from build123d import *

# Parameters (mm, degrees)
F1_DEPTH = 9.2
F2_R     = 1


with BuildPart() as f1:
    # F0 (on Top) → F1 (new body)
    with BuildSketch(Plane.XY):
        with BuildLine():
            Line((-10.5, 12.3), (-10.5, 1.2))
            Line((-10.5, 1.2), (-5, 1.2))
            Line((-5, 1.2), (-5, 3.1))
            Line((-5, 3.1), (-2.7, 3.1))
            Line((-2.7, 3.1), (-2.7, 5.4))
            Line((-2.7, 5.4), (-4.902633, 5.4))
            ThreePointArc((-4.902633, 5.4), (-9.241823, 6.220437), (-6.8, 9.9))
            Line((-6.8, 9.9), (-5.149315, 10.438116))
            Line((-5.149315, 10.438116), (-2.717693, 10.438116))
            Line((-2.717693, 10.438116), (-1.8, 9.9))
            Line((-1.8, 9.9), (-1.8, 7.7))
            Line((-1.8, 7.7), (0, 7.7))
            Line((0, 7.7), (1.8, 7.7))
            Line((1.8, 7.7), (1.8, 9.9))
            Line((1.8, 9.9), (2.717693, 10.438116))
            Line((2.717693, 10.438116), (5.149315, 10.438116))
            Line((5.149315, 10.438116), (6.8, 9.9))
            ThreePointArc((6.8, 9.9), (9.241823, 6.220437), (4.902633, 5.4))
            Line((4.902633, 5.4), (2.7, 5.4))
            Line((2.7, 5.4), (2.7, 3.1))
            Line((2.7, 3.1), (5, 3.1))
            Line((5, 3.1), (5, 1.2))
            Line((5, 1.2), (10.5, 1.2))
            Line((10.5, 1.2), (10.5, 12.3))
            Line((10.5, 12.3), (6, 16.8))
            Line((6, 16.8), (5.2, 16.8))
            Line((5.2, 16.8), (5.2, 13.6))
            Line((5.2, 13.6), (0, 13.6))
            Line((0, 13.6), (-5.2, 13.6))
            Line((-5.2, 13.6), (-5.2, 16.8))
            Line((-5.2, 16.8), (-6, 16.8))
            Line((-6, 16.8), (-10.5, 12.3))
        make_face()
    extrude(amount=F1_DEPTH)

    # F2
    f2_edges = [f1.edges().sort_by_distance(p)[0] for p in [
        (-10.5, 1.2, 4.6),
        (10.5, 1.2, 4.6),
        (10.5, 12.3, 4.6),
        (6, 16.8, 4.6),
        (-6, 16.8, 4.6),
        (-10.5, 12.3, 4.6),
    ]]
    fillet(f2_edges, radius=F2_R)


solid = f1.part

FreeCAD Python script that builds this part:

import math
import FreeCAD as App
import Part
import Sketcher
from FreeCAD import Vector


def edges_at(feature, points):
    """Names of the edges that pass closest to the given points."""
    edges = feature.Shape.Edges
    near = lambda p: min(range(len(edges)), key=lambda i: edges[i].distToShape(Part.Vertex(*p))[0])
    return sorted({f"Edge{near(p) + 1}" for p in points})

doc = App.newDocument("Part")
body = doc.addObject("PartDesign::Body", "Body")

sketch1 = doc.addObject("Sketcher::SketchObject", "Sketch")
body.addObject(sketch1)
sketch1.AttachmentSupport = (doc.XY_Plane, [""])
sketch1.MapMode = "FlatFace"
sketch1.addGeometry([
    Part.LineSegment(Vector(-10.5, 12.3, 0), Vector(-10.5, 1.2, 0)),
    Part.LineSegment(Vector(-10.5, 1.2, 0), Vector(-5, 1.2, 0)),
    Part.LineSegment(Vector(-5, 1.2, 0), Vector(-5, 3.1, 0)),
    Part.LineSegment(Vector(-5, 3.1, 0), Vector(-2.7, 3.1, 0)),
    Part.LineSegment(Vector(-2.7, 3.1, 0), Vector(-2.7, 5.4, 0)),
    Part.LineSegment(Vector(-2.7, 5.4, 0), Vector(-4.902633, 5.4, 0)),
    Part.ArcOfCircle(Part.Circle(Vector(-6.8, 7.25, 0), Vector(0, 0, 1), 2.65), math.radians(90.000005), math.radians(315.724182)),
    Part.LineSegment(Vector(-6.8, 9.9, 0), Vector(-5.149315, 10.438116, 0)),
    Part.LineSegment(Vector(-5.149315, 10.438116, 0), Vector(-2.717693, 10.438116, 0)),
    Part.LineSegment(Vector(-2.717693, 10.438116, 0), Vector(-1.8, 9.9, 0)),
    Part.LineSegment(Vector(-1.8, 9.9, 0), Vector(-1.8, 7.7, 0)),
    Part.LineSegment(Vector(-1.8, 7.7, 0), Vector(1.8, 7.7, 0)),
    Part.LineSegment(Vector(1.8, 7.7, 0), Vector(1.8, 9.9, 0)),
    Part.LineSegment(Vector(1.8, 9.9, 0), Vector(2.717693, 10.438116, 0)),
    Part.LineSegment(Vector(2.717693, 10.438116, 0), Vector(5.149315, 10.438116, 0)),
    Part.LineSegment(Vector(5.149315, 10.438116, 0), Vector(6.8, 9.9, 0)),
    Part.ArcOfCircle(Part.Circle(Vector(6.8, 7.25, 0), Vector(0, 0, 1), 2.65), math.radians(-135.724182), math.radians(89.999995)),
    Part.LineSegment(Vector(4.902633, 5.4, 0), Vector(2.7, 5.4, 0)),
    Part.LineSegment(Vector(2.7, 5.4, 0), Vector(2.7, 3.1, 0)),
    Part.LineSegment(Vector(2.7, 3.1, 0), Vector(5, 3.1, 0)),
    Part.LineSegment(Vector(5, 3.1, 0), Vector(5, 1.2, 0)),
    Part.LineSegment(Vector(5, 1.2, 0), Vector(10.5, 1.2, 0)),
    Part.LineSegment(Vector(10.5, 1.2, 0), Vector(10.5, 12.3, 0)),
    Part.LineSegment(Vector(10.5, 12.3, 0), Vector(6, 16.8, 0)),
    Part.LineSegment(Vector(6, 16.8, 0), Vector(5.2, 16.8, 0)),
    Part.LineSegment(Vector(5.2, 16.8, 0), Vector(5.2, 13.6, 0)),
    Part.LineSegment(Vector(5.2, 13.6, 0), Vector(-5.2, 13.6, 0)),
    Part.LineSegment(Vector(-5.2, 13.6, 0), Vector(-5.2, 16.8, 0)),
    Part.LineSegment(Vector(-5.2, 16.8, 0), Vector(-6, 16.8, 0)),
    Part.LineSegment(Vector(-6, 16.8, 0), Vector(-10.5, 12.3, 0)),
], False)
sketch1.addConstraint([
    Sketcher.Constraint("Coincident", 0, 2, 1, 1),
    Sketcher.Constraint("Coincident", 1, 2, 2, 1),
    Sketcher.Constraint("Coincident", 2, 2, 3, 1),
    Sketcher.Constraint("Coincident", 3, 2, 4, 1),
    Sketcher.Constraint("Coincident", 4, 2, 5, 1),
    Sketcher.Constraint("Coincident", 5, 2, 6, 2),
    Sketcher.Constraint("Coincident", 6, 1, 7, 1),
    Sketcher.Constraint("Coincident", 7, 2, 8, 1),
    Sketcher.Constraint("Coincident", 8, 2, 9, 1),
    Sketcher.Constraint("Coincident", 9, 2, 10, 1),
    Sketcher.Constraint("Coincident", 10, 2, 11, 1),
    Sketcher.Constraint("Coincident", 11, 2, 12, 1),
    Sketcher.Constraint("Coincident", 12, 2, 13, 1),
    Sketcher.Constraint("Coincident", 13, 2, 14, 1),
    Sketcher.Constraint("Coincident", 14, 2, 15, 1),
    Sketcher.Constraint("Coincident", 15, 2, 16, 2),
    Sketcher.Constraint("Coincident", 16, 1, 17, 1),
    Sketcher.Constraint("Coincident", 17, 2, 18, 1),
    Sketcher.Constraint("Coincident", 18, 2, 19, 1),
    Sketcher.Constraint("Coincident", 19, 2, 20, 1),
    Sketcher.Constraint("Coincident", 20, 2, 21, 1),
    Sketcher.Constraint("Coincident", 21, 2, 22, 1),
    Sketcher.Constraint("Coincident", 22, 2, 23, 1),
    Sketcher.Constraint("Coincident", 23, 2, 24, 1),
    Sketcher.Constraint("Coincident", 24, 2, 25, 1),
    Sketcher.Constraint("Coincident", 25, 2, 26, 1),
    Sketcher.Constraint("Coincident", 26, 2, 27, 1),
    Sketcher.Constraint("Coincident", 27, 2, 28, 1),
    Sketcher.Constraint("Coincident", 28, 2, 29, 1),
    Sketcher.Constraint("Coincident", 29, 2, 0, 1),
    Sketcher.Constraint("Vertical", 0),
    Sketcher.Constraint("Horizontal", 1),
    Sketcher.Constraint("Vertical", 2),
    Sketcher.Constraint("Horizontal", 3),
    Sketcher.Constraint("Vertical", 4),
    Sketcher.Constraint("Horizontal", 5),
    Sketcher.Constraint("Horizontal", 8),
    Sketcher.Constraint("Vertical", 10),
    Sketcher.Constraint("Horizontal", 11),
    Sketcher.Constraint("Vertical", 12),
    Sketcher.Constraint("Horizontal", 14),
    Sketcher.Constraint("Horizontal", 17),
    Sketcher.Constraint("Vertical", 18),
    Sketcher.Constraint("Horizontal", 19),
    Sketcher.Constraint("Vertical", 20),
    Sketcher.Constraint("Horizontal", 21),
    Sketcher.Constraint("Vertical", 22),
    Sketcher.Constraint("Horizontal", 24),
    Sketcher.Constraint("Vertical", 25),
    Sketcher.Constraint("Horizontal", 26),
    Sketcher.Constraint("Vertical", 27),
    Sketcher.Constraint("Horizontal", 28),
    Sketcher.Constraint("Equal", 6, 16),
    Sketcher.Constraint("Symmetric", 6, 3, 16, 3, -2),
    Sketcher.Constraint("Symmetric", 9, 2, 12, 2, -2),
    Sketcher.Constraint("Symmetric", 8, 2, 13, 2, -2),
    Sketcher.Constraint("Symmetric", 4, 2, 17, 2, -2),
    Sketcher.Constraint("Symmetric", 2, 2, 19, 2, -2),
    Sketcher.Constraint("Symmetric", 0, 2, 21, 2, -2),
    Sketcher.Constraint("Symmetric", 24, 2, 27, 2, -2),
    Sketcher.Constraint("Perpendicular", 23, 29),
    Sketcher.Constraint("Horizontal", 6, 1, 9, 2),
    Sketcher.Constraint("Horizontal", 22, 2, 29, 2),
    Sketcher.Constraint("Vertical", 16, 3, 15, 2),
    Sketcher.Constraint("Equal", 8, 14),
    Sketcher.Constraint("Equal", 24, 28),
    Sketcher.Constraint("Equal", 19, 4),
    Sketcher.Constraint("Equal", 7, 15),
    Sketcher.Constraint("Radius", 6, 2.65),
    Sketcher.Constraint("DistanceX", 1, 1, 1, 2, 5.5),
    Sketcher.Constraint("DistanceX", 3, 1, 3, 2, 2.3),
    Sketcher.Constraint("DistanceX", 11, 1, 11, 2, 3.6),
    Sketcher.Constraint("DistanceX", 24, 2, 24, 1, 0.8),
    Sketcher.Constraint("DistanceX", 26, 2, 26, 1, 10.4),
    Sketcher.Constraint("DistanceY", 0, 2, 0, 1, 11.1),
    Sketcher.Constraint("DistanceY", 2, 1, 2, 2, 1.9),
    Sketcher.Constraint("DistanceY", 10, 2, 10, 1, 2.2),
    Sketcher.Constraint("DistanceY", 25, 2, 25, 1, 3.2),
    Sketcher.Constraint("DistanceX", 1, 2, -1, 1, 5.0),
    Sketcher.Constraint("DistanceX", 6, 1, 9, 2, 5.0),
    Sketcher.Constraint("DistanceY", -1, 1, 0, 2, 1.2),
    Sketcher.Constraint("DistanceY", -1, 1, 6, 1, 9.9),
    Sketcher.Constraint("DistanceX", 8, 1, 8, 2, 2.431622),
    Sketcher.Constraint("DistanceX", 7, 2, 5, 2, 0.246682),
    Sketcher.Constraint("Distance", 7, 1.736183),
])
pad1 = doc.addObject("PartDesign::Pad", "Pad")
body.addObject(pad1)
pad1.Profile = sketch1
pad1.Length = 9.2
doc.recompute()

fillet = doc.addObject("PartDesign::Fillet", "Fillet")
body.addObject(fillet)
fillet.Base = (pad1, edges_at(pad1, [
    (-10.5, 1.2, 4.6),
    (10.5, 1.2, 4.6),
    (10.5, 12.3, 4.6),
    (6, 16.8, 4.6),
    (-6, 16.8, 4.6),
    (-10.5, 12.3, 4.6),
]))
fillet.Radius = 1

doc.recompute()
